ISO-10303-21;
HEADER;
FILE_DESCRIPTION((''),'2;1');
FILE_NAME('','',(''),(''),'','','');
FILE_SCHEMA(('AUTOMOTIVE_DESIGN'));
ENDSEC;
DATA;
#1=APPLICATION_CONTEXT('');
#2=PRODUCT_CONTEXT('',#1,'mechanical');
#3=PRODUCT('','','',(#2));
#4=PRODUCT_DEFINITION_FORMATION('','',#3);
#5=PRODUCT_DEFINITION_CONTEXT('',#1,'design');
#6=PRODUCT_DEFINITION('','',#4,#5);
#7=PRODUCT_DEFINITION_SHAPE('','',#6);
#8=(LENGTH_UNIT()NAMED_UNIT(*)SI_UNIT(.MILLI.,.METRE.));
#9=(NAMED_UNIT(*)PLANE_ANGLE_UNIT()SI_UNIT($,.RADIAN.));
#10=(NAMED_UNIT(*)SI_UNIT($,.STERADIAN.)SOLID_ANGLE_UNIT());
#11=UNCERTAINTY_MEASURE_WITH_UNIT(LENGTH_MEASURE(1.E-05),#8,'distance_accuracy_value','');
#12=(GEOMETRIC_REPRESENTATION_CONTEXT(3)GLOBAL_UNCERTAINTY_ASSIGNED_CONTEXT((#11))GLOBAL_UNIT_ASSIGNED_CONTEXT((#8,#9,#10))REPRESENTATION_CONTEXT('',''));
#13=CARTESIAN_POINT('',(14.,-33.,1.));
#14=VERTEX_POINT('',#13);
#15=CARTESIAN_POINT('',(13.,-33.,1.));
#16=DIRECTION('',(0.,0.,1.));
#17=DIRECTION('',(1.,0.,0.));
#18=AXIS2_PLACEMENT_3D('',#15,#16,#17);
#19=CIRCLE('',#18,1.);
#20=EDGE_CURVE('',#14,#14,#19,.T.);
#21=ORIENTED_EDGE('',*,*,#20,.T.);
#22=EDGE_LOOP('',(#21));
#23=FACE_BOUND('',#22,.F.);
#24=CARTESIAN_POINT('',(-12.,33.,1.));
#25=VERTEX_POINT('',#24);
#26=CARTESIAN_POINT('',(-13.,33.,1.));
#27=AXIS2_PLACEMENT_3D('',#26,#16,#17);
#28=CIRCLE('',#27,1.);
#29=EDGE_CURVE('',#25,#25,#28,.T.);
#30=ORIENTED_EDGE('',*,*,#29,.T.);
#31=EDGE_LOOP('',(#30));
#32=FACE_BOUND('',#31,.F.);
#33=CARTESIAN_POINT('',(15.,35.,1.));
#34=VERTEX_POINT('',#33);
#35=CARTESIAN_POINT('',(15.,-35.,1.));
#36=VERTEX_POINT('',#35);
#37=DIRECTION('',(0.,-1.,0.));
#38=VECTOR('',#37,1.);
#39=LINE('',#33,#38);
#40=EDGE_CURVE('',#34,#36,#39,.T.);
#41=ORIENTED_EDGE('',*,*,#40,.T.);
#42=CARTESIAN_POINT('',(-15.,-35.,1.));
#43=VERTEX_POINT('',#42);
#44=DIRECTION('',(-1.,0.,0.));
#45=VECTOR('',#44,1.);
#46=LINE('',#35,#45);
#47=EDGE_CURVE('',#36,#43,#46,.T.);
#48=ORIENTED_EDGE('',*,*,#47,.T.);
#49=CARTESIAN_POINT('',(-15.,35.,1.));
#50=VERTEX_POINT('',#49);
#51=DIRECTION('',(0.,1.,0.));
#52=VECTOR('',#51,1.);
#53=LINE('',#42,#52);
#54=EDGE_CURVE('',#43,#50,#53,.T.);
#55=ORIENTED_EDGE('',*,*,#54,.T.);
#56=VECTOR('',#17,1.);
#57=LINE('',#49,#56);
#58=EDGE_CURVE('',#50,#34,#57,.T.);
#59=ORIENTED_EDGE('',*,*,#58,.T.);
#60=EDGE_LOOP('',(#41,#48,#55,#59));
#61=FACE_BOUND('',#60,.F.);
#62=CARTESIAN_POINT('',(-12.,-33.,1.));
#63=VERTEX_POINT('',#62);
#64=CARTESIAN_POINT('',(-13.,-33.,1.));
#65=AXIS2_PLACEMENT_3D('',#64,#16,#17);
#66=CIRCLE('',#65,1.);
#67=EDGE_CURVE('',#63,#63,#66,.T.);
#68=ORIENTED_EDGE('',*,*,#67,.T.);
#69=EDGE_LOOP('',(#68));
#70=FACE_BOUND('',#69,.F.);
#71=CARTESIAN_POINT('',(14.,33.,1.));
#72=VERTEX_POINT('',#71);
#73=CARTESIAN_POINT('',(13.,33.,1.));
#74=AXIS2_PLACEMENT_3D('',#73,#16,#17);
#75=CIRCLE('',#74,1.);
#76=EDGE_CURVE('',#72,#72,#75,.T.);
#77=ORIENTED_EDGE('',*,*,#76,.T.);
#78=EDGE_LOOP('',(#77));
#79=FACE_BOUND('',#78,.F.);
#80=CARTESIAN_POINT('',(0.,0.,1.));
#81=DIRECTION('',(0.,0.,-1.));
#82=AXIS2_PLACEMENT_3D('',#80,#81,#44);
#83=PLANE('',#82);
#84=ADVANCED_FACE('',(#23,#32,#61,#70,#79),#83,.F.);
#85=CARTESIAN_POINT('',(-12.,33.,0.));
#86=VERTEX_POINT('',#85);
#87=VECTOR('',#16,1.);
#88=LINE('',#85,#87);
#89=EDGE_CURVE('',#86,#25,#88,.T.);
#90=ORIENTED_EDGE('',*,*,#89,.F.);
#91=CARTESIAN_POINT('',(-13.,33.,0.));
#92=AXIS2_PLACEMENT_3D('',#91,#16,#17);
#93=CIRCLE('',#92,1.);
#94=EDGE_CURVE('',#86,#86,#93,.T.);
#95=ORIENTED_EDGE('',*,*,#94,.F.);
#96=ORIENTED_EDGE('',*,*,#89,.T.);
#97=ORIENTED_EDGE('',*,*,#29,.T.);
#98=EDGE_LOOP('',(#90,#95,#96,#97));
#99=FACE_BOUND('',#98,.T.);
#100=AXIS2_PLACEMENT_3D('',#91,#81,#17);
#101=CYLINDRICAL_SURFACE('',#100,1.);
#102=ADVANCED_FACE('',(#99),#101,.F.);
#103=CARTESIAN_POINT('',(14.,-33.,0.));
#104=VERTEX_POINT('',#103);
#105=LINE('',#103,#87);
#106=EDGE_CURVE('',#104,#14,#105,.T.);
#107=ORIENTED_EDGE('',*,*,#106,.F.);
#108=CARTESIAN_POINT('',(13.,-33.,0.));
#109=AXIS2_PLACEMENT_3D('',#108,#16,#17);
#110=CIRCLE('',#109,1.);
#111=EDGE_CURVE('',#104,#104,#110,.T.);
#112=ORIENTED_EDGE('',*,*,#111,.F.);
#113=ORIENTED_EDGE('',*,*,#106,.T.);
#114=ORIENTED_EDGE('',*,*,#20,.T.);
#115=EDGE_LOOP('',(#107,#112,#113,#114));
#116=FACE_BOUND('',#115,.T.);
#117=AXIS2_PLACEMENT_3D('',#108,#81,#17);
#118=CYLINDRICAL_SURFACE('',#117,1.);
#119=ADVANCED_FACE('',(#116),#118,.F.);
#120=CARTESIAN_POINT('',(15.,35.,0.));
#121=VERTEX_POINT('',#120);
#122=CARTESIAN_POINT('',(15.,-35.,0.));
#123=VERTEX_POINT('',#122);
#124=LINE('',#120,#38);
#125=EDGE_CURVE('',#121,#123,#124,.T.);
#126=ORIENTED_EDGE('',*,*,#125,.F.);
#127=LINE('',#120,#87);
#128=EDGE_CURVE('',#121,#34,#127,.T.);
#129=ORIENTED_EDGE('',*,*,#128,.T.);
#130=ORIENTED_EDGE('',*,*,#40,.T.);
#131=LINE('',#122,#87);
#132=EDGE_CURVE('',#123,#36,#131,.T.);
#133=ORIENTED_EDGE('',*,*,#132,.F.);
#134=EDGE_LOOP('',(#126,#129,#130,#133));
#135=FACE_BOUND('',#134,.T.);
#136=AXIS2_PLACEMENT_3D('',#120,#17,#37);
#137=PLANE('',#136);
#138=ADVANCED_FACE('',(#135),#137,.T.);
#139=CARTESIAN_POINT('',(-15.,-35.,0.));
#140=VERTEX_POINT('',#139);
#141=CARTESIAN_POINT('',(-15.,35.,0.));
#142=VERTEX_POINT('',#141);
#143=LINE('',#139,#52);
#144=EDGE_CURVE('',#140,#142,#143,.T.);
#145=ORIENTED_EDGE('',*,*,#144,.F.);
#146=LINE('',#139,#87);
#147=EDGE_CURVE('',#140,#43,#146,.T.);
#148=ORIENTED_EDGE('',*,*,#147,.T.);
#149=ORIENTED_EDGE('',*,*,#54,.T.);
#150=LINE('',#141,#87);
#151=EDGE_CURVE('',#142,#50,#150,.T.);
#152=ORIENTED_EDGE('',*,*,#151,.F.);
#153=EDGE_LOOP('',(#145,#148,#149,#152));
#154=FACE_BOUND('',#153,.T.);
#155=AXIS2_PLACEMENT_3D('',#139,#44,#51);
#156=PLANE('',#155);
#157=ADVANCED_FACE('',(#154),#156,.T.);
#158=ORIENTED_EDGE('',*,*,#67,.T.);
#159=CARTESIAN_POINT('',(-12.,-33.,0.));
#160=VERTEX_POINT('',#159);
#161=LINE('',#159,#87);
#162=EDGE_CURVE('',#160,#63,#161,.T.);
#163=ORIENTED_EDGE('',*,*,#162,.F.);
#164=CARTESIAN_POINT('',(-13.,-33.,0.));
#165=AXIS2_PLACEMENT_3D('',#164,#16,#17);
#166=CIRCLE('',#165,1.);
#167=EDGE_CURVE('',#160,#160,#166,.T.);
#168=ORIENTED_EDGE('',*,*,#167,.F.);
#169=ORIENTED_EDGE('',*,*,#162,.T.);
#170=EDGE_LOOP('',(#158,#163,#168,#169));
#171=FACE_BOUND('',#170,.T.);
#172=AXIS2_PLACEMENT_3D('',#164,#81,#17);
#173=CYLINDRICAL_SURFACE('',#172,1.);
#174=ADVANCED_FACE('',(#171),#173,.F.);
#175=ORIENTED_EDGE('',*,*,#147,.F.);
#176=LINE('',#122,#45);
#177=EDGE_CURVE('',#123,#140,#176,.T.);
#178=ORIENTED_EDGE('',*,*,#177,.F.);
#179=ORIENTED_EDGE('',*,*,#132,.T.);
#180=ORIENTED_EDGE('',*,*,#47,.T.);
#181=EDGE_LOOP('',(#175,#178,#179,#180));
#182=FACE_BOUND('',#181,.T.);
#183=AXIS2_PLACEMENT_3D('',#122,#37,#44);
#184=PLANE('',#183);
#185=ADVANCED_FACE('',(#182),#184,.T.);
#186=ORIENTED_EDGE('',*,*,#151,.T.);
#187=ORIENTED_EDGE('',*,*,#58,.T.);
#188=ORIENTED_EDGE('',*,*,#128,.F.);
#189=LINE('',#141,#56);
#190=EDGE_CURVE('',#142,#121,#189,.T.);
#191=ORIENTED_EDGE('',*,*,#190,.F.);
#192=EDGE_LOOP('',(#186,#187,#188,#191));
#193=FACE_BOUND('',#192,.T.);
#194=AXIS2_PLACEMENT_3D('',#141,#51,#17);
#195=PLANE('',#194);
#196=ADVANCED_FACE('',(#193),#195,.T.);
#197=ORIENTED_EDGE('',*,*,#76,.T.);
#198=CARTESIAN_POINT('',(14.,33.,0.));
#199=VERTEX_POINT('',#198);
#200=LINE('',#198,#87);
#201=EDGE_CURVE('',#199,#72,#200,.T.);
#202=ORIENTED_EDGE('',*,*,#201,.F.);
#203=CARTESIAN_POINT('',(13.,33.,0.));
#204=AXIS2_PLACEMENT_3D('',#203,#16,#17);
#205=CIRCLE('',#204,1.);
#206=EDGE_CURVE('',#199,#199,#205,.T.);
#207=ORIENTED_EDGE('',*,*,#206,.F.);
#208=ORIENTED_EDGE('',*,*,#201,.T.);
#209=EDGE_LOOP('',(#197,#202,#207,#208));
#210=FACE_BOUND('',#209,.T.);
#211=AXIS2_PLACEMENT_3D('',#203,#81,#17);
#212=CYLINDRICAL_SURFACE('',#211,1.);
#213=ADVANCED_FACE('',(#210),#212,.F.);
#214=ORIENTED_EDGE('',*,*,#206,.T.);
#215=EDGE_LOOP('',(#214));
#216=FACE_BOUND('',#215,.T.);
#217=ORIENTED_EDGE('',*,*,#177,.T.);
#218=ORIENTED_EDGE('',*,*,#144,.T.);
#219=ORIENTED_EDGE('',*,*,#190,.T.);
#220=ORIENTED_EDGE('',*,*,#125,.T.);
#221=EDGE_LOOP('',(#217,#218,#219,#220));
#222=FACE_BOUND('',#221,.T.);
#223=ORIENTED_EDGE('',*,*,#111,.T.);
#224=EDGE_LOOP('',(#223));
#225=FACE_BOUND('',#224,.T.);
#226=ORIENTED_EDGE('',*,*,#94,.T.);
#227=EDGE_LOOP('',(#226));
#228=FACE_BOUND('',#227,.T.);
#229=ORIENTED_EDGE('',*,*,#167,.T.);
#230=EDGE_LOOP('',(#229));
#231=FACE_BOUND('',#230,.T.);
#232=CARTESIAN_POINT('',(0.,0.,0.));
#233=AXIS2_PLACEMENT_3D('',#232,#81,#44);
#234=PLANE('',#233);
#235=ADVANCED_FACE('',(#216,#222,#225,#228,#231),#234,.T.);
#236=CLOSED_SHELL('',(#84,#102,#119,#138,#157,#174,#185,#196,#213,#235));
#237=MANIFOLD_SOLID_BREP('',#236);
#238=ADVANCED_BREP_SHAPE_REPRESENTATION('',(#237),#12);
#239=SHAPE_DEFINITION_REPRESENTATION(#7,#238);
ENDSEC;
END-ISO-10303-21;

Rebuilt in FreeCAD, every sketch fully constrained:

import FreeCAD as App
import Part
import Sketcher

V = App.Vector


def add_polygon(sketch, points):
    """Adds a closed chain of lines whose ends are joined by coincident constraints."""
    first, n = sketch.GeometryCount, len(points)
    for a, b in zip(points, points[1:] + points[:1]):
        sketch.addGeometry(Part.LineSegment(App.Vector(*a, 0), App.Vector(*b, 0)), False)
    for i in range(n):
        sketch.addConstraint(Sketcher.Constraint("Coincident", first + i, 2, first + (i + 1) % n, 1))

doc = App.newDocument("Part")
body = doc.addObject("PartDesign::Body", "Body")

sketch1 = doc.addObject("Sketcher::SketchObject", "Sketch")
body.addObject(sketch1)
sketch1.AttachmentSupport = (doc.XY_Plane, [""])
sketch1.MapMode = "FlatFace"
add_polygon(sketch1, [(15, -35), (15, 35), (-15, 35), (-15, -35)])
sketch1.addGeometry(Part.Circle(V(-13, -33, 0), V(0, 0, 1), 1), False)
sketch1.addGeometry(Part.Circle(V(13, -33, 0), V(0, 0, 1), 1), False)
sketch1.addGeometry(Part.Circle(V(-13, 33, 0), V(0, 0, 1), 1), False)
sketch1.addGeometry(Part.Circle(V(13, 33, 0), V(0, 0, 1), 1), False)
sketch1.addConstraint(Sketcher.Constraint("Vertical", 0))
sketch1.addConstraint(Sketcher.Constraint("Horizontal", 1))
sketch1.addConstraint(Sketcher.Constraint("Vertical", 2))
sketch1.addConstraint(Sketcher.Constraint("Horizontal", 3))
sketch1.addConstraint(Sketcher.Constraint("Equal", 4, 5))
sketch1.addConstraint(Sketcher.Constraint("Equal", 5, 6))
sketch1.addConstraint(Sketcher.Constraint("Equal", 6, 7))
sketch1.addConstraint(Sketcher.Constraint("Symmetric", 5, 3, 6, 3, -1, 1))
sketch1.addConstraint(Sketcher.Constraint("Symmetric", 4, 3, 7, 3, -1, 1))
sketch1.addConstraint(Sketcher.Constraint("Symmetric", 0, 2, 2, 2, -1, 1))
sketch1.addConstraint(Sketcher.Constraint("Symmetric", 4, 3, 5, 3, -2))
sketch1.addConstraint(Sketcher.Constraint("Diameter", 4, 2.0))
sketch1.addConstraint(Sketcher.Constraint("DistanceX", 1, 2, 1, 1, 30.0))
sketch1.addConstraint(Sketcher.Constraint("DistanceY", 0, 1, 0, 2, 70.0))
sketch1.addConstraint(Sketcher.Constraint("DistanceX", 4, 3, -1, 1, 13.0))
sketch1.addConstraint(Sketcher.Constraint("DistanceY", 4, 3, -1, 1, 33.0))
pad1 = doc.addObject("PartDesign::Pad", "Pad")
body.addObject(pad1)
pad1.Profile = sketch1
pad1.Length = 1

doc.recompute()
